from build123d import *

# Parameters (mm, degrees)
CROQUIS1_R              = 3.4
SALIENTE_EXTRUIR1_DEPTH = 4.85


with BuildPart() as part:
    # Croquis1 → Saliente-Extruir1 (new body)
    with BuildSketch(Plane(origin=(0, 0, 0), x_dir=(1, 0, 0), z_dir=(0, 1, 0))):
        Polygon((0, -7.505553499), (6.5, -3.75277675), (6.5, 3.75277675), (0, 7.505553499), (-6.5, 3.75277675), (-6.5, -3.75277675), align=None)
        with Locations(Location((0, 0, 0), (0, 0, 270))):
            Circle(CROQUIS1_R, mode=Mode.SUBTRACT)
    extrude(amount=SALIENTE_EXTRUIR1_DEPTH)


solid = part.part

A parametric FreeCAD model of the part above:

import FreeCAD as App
import Part
import Sketcher

V = App.Vector
Q = App.Units.Quantity


def add_polygon(sketch, points):
    """Adds a closed chain of lines whose ends are joined by coincident constraints."""
    first, n = sketch.GeometryCount, len(points)
    for a, b in zip(points, points[1:] + points[:1]):
        sketch.addGeometry(Part.LineSegment(App.Vector(*a, 0), App.Vector(*b, 0)), False)
    for i in range(n):
        sketch.addConstraint(Sketcher.Constraint("Coincident", first + i, 2, first + (i + 1) % n, 1))

doc = App.newDocument("Part")
body = doc.addObject("PartDesign::Body", "Body")

# Sketch on XZ plane
sketch1 = body.newObject("Sketcher::SketchObject", "Sketch")
sketch1.AttachmentSupport = (doc.getObject("XZ_Plane"), [""])
sketch1.MapMode = "FlatFace"
add_polygon(sketch1, [(0, 7.5), (6.5, 3.8), (6.5, -3.8), (0, -7.5), (-6.5, -3.8), (-6.5, 3.8)])  # lines 0-5
sketch1.addGeometry(Part.Circle(V(0, 0, 0), V(0, 0, 1), 3.4), False)  # 6
sketch1.addConstraint(Sketcher.Constraint("Vertical", 1))
sketch1.addConstraint(Sketcher.Constraint("Vertical", 4))
sketch1.addConstraint(Sketcher.Constraint("Coincident", 6, 3, -1, 1))
sketch1.addConstraint(Sketcher.Constraint("Symmetric", 0, 2, 3, 2, -1, 1))
sketch1.addConstraint(Sketcher.Constraint("Symmetric", 2, 2, 5, 2, -1, 1))
sketch1.addConstraint(Sketcher.Constraint("PointOnObject", 2, 2, -2))
sketch1.addConstraint(Sketcher.Constraint("Parallel", 2, 5))
sketch1.addConstraint(Sketcher.Constraint("Horizontal", 1, 2, 3, 2))
sketch1.addConstraint(Sketcher.Constraint("Diameter", 6, Q("6.8 mm")))
sketch1.addConstraint(Sketcher.Constraint("Angle", 0, Q("-30 deg")))
sketch1.addConstraint(Sketcher.Constraint("DistanceX", 3, 2, 1, 2, Q("13 mm")))
sketch1.addConstraint(Sketcher.Constraint("DistanceY", 1, 2, 1, 1, Q("7.505554 mm")))
pad1 = body.newObject("PartDesign::Pad", "Pad")
pad1.Profile = sketch1
pad1.Length = 4.85
pad1.Reversed = True

doc.recompute()
